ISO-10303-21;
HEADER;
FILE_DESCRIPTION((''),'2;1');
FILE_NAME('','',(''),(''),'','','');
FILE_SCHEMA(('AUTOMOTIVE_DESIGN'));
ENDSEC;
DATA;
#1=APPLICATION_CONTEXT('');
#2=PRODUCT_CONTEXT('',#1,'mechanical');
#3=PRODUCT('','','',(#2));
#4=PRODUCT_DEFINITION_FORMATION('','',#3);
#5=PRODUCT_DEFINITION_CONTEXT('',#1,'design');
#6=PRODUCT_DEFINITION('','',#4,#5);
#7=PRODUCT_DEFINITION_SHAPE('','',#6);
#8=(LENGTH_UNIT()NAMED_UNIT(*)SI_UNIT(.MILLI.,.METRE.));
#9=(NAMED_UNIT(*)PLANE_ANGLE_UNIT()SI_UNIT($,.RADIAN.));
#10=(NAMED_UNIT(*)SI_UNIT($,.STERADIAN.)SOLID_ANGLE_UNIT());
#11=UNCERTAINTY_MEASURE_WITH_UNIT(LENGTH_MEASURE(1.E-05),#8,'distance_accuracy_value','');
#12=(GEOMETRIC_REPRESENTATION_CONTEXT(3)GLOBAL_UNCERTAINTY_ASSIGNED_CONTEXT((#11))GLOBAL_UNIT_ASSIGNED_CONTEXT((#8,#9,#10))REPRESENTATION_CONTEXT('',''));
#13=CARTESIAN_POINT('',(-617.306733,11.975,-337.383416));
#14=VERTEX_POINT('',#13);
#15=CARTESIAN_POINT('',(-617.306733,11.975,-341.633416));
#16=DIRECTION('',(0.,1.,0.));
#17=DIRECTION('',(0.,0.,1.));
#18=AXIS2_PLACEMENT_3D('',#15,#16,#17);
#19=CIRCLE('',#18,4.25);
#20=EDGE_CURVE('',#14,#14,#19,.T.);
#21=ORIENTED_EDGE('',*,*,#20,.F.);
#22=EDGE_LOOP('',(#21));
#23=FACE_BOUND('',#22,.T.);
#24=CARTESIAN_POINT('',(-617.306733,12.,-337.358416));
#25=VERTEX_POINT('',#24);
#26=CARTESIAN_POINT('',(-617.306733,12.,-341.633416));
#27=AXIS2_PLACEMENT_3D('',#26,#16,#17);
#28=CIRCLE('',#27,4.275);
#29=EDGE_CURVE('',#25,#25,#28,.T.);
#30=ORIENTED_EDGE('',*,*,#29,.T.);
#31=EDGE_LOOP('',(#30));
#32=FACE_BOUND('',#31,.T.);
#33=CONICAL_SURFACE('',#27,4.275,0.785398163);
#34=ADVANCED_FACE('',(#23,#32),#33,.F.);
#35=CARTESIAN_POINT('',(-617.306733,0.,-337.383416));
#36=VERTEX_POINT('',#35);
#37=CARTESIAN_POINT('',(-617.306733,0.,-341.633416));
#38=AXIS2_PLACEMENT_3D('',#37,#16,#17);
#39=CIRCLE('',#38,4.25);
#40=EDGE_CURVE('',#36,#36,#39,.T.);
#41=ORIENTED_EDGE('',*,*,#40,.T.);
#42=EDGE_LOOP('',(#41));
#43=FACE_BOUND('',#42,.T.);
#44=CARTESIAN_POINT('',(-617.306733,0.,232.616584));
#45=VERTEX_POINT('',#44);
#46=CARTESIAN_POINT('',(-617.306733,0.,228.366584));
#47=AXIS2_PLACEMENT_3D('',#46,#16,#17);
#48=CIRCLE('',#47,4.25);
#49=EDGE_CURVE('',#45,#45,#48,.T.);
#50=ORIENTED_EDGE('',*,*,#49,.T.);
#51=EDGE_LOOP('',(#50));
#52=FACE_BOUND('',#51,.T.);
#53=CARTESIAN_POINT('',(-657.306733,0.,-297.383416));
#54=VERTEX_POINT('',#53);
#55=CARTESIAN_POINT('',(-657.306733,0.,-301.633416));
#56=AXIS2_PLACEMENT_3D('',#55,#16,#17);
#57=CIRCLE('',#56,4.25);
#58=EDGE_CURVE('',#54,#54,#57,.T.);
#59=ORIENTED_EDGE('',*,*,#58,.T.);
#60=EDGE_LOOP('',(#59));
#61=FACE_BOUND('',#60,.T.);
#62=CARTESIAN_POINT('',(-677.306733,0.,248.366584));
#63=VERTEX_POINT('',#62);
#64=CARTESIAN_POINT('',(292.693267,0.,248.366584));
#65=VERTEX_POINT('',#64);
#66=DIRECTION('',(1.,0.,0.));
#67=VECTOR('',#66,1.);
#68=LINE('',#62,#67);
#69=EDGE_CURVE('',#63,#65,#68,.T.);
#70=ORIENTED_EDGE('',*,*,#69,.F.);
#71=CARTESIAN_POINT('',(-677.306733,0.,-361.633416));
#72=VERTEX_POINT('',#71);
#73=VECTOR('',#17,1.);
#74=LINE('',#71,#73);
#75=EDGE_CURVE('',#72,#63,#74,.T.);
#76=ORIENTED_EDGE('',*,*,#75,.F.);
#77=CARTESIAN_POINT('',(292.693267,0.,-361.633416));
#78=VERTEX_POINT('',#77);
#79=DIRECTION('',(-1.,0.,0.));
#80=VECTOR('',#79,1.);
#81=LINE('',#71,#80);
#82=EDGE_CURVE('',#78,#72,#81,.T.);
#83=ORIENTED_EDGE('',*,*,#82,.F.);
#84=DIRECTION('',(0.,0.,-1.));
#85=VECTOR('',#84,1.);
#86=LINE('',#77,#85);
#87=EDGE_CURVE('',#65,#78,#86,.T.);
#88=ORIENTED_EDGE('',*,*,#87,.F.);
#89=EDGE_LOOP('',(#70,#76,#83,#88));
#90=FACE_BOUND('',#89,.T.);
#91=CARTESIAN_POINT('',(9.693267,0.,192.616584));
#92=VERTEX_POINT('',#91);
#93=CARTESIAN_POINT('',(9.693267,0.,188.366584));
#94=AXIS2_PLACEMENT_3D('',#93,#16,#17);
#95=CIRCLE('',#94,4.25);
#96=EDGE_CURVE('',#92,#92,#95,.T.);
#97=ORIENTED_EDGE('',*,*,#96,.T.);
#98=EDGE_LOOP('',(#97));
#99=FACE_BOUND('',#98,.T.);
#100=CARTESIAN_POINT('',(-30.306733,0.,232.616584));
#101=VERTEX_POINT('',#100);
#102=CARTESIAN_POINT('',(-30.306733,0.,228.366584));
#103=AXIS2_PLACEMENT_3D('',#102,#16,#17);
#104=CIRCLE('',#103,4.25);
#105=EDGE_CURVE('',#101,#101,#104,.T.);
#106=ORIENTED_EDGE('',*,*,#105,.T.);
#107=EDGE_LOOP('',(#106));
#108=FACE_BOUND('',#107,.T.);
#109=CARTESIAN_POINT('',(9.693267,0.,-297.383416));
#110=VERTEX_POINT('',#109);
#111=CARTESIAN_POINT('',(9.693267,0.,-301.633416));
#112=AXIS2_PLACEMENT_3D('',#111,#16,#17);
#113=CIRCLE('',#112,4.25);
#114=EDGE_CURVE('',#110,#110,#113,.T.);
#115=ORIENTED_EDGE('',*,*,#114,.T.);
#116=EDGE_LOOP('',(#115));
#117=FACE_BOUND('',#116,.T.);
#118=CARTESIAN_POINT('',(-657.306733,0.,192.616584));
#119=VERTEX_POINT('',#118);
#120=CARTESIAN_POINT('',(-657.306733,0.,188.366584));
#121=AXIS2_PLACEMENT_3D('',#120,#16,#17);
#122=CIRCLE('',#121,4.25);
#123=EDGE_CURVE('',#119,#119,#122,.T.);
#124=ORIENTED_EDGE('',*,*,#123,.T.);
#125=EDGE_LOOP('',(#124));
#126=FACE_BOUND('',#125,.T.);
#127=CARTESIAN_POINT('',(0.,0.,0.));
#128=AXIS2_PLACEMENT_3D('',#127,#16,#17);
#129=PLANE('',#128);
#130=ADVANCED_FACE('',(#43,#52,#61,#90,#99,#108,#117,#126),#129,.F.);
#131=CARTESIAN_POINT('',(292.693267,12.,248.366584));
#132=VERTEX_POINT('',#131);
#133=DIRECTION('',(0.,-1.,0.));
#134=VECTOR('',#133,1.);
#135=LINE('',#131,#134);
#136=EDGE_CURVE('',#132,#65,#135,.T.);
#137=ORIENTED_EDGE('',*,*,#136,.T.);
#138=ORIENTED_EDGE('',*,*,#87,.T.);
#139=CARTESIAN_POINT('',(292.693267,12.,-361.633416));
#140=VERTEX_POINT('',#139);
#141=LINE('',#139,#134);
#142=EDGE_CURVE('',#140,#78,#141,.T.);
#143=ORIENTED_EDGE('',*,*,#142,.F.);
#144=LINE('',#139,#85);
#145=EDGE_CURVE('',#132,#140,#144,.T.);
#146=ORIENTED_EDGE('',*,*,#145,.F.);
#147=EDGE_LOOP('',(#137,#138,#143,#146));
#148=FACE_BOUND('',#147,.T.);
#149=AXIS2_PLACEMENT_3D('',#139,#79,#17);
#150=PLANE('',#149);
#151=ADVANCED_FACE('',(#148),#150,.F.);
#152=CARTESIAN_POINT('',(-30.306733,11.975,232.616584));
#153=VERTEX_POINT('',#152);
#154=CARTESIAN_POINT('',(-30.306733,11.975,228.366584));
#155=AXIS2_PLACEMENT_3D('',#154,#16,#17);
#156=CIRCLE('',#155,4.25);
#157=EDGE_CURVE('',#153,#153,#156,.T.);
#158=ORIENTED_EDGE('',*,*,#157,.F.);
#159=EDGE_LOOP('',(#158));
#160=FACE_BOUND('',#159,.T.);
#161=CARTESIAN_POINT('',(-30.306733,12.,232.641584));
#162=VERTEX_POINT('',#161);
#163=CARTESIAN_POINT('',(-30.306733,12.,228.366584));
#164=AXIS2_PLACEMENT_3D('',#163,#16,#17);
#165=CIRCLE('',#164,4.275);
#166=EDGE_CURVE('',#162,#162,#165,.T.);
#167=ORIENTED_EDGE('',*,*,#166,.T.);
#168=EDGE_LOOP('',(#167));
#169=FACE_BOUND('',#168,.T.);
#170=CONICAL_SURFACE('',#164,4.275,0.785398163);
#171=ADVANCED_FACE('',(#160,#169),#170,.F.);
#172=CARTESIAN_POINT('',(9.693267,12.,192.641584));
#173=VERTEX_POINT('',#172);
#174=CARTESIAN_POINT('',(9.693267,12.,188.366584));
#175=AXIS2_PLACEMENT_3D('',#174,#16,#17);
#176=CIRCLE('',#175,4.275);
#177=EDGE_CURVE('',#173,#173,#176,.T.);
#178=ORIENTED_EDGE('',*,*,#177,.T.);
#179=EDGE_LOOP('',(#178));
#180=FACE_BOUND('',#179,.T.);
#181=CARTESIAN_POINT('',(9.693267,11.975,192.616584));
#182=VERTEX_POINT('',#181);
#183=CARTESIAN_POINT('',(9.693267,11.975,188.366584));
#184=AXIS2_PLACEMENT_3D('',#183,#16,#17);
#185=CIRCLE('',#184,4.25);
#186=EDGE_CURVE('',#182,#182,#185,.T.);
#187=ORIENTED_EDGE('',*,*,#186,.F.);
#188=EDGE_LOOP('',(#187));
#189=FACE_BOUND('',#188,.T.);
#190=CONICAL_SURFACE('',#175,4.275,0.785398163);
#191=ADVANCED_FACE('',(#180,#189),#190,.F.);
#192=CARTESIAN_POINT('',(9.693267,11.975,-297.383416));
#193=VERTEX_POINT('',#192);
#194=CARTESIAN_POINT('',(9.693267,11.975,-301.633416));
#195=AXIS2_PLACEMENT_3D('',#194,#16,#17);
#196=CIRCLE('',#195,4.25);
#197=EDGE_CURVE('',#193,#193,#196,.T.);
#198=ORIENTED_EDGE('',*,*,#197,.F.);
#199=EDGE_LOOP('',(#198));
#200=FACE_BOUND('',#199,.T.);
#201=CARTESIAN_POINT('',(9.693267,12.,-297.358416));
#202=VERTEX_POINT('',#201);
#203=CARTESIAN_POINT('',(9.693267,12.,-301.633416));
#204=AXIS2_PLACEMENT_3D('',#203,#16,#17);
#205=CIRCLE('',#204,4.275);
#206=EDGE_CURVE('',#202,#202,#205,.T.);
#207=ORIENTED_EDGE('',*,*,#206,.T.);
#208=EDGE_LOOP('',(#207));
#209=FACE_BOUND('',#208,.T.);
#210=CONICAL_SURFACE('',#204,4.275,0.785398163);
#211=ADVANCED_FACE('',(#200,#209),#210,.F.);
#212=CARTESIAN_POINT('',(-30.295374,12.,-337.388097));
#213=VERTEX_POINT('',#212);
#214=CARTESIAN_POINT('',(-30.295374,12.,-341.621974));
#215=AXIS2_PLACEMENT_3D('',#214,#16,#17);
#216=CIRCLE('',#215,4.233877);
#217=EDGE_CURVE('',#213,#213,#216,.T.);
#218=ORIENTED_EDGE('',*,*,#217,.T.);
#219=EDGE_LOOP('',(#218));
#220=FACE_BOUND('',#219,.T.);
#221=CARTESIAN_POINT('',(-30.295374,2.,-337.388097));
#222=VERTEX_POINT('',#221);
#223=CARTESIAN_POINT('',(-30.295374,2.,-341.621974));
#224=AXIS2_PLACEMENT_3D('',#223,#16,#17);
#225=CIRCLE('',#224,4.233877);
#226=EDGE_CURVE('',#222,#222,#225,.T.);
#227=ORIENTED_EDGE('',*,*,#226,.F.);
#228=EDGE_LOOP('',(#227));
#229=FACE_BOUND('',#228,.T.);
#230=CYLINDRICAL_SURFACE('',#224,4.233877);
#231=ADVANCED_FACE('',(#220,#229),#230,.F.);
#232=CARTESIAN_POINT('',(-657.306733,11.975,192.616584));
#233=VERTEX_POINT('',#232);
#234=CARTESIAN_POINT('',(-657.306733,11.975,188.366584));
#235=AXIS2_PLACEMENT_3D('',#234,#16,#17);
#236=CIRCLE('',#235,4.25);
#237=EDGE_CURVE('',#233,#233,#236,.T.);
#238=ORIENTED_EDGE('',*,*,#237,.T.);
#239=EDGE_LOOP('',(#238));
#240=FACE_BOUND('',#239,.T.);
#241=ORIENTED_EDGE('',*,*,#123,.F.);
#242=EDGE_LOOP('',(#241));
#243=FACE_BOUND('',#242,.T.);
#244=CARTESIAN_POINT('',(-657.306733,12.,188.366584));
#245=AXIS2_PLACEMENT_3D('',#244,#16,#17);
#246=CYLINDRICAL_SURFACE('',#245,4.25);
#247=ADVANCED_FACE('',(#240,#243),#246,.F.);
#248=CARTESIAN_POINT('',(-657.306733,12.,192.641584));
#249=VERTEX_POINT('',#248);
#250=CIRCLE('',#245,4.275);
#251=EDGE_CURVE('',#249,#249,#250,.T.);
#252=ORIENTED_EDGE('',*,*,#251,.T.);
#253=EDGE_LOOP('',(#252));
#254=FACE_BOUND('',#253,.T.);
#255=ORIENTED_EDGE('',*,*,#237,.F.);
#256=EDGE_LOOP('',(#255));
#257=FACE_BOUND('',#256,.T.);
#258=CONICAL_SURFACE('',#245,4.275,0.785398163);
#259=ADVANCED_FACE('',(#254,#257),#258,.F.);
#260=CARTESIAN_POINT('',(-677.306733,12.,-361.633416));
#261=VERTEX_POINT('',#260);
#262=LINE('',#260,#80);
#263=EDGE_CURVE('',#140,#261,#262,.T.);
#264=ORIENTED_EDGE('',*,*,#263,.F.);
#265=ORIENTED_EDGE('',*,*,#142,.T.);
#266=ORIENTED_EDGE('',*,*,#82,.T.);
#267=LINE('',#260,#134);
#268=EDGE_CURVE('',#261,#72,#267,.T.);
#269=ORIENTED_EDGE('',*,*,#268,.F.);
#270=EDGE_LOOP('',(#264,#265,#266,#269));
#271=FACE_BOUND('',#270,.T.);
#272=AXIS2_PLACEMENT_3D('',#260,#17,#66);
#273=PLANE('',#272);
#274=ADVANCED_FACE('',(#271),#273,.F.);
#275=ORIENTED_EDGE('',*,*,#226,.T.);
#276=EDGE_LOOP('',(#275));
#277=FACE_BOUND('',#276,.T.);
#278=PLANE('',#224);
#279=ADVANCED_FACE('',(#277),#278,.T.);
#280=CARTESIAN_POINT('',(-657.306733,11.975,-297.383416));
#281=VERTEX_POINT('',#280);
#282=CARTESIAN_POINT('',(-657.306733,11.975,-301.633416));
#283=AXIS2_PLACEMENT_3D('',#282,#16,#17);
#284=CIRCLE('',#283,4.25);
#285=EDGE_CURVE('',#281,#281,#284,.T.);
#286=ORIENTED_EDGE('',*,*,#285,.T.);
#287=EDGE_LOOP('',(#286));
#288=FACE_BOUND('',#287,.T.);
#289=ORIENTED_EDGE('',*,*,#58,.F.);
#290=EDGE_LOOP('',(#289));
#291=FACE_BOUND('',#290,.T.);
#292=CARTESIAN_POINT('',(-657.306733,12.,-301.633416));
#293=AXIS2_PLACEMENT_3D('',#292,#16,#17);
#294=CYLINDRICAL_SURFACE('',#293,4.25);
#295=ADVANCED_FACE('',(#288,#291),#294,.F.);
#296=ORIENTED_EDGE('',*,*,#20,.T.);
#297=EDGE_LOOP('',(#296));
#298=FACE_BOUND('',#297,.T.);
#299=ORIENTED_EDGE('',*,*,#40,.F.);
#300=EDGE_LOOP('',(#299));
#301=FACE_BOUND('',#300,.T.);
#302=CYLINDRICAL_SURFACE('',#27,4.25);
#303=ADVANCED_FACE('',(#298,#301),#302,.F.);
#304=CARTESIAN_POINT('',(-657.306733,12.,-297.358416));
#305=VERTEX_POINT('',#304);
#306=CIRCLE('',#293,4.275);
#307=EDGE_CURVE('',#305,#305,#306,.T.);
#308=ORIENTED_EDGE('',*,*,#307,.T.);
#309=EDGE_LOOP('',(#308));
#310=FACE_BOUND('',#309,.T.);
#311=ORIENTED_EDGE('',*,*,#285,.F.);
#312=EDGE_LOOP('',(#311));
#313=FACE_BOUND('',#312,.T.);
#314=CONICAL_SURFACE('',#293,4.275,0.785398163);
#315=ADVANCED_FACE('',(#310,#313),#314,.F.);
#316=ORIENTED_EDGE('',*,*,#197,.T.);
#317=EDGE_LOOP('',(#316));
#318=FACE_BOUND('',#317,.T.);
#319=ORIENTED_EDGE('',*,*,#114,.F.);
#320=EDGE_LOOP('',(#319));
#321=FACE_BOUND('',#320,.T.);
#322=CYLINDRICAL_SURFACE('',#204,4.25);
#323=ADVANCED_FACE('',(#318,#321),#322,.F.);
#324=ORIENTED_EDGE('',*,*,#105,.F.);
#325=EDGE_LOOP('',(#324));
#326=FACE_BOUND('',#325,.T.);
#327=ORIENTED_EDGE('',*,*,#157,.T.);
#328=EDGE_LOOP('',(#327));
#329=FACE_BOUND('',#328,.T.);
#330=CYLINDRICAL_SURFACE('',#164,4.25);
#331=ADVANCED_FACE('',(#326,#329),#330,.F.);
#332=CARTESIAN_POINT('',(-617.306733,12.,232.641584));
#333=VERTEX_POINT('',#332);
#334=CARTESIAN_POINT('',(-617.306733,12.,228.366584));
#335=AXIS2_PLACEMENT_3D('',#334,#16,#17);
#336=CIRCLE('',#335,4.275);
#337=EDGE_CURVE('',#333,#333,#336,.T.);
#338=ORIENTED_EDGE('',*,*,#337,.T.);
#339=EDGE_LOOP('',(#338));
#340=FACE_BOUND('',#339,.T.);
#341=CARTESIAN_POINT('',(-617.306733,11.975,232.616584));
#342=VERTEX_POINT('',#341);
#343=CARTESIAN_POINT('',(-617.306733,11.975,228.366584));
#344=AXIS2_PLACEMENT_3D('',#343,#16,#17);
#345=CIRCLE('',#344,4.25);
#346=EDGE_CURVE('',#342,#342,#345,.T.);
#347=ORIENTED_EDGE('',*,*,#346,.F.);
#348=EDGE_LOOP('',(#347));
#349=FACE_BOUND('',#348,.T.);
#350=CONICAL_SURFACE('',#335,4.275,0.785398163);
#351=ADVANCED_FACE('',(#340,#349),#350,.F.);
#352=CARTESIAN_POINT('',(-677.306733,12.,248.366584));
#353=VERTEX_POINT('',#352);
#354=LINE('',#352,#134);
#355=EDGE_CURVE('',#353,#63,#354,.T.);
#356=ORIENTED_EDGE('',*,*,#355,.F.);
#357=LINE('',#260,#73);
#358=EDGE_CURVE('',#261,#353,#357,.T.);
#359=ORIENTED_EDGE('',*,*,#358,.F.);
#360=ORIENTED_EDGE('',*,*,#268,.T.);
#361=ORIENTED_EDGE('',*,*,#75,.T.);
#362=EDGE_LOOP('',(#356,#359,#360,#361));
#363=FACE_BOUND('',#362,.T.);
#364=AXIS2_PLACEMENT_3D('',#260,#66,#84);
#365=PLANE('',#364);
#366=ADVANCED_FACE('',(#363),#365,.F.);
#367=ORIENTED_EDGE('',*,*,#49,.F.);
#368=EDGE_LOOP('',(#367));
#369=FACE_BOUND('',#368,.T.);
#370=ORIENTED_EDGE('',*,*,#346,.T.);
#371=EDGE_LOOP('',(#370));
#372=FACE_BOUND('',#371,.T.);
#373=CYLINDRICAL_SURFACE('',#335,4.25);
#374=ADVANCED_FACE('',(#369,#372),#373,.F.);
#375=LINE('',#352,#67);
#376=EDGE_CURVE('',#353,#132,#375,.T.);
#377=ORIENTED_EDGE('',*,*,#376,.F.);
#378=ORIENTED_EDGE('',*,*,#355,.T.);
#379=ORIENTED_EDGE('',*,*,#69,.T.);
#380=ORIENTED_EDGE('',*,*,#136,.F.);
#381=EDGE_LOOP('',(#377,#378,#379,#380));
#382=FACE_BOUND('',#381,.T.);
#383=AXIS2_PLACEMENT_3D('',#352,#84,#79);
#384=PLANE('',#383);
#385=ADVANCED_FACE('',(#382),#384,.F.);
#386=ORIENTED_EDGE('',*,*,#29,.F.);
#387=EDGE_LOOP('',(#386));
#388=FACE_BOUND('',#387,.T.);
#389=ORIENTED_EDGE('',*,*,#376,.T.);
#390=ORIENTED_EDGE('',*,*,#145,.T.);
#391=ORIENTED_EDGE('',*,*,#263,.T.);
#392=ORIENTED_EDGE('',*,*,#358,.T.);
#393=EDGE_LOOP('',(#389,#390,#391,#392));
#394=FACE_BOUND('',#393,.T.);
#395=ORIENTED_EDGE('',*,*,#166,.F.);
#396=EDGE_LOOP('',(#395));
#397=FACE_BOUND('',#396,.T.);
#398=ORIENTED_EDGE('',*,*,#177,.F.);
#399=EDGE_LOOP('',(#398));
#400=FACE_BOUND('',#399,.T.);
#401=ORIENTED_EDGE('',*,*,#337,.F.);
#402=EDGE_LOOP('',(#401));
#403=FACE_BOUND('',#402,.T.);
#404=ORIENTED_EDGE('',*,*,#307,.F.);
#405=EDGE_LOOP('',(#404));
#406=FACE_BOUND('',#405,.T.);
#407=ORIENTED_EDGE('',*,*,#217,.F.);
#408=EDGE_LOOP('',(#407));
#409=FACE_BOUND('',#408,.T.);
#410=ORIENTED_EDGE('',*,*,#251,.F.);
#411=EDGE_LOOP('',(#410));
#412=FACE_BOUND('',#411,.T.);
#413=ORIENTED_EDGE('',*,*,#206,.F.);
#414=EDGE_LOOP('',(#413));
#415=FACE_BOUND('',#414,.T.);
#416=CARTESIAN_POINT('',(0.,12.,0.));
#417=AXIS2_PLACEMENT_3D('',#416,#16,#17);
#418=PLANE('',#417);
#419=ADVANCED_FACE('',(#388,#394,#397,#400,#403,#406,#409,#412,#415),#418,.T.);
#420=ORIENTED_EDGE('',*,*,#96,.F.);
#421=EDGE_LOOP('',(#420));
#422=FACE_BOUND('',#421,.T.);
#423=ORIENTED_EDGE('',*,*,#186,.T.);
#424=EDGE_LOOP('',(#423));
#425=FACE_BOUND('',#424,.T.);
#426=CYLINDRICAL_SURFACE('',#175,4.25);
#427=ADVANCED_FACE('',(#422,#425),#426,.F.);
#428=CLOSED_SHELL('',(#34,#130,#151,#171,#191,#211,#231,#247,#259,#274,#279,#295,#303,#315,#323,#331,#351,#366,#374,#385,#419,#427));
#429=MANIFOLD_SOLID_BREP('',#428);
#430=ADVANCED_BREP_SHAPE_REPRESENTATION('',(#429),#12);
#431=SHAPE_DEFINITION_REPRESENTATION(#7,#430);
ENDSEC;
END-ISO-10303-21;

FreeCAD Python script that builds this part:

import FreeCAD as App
import Part
import Sketcher

V = App.Vector
Q = App.Units.Quantity


def add_polygon(sketch, points):
    """Adds a closed chain of lines whose ends are joined by coincident constraints."""
    first, n = sketch.GeometryCount, len(points)
    for a, b in zip(points, points[1:] + points[:1]):
        sketch.addGeometry(Part.LineSegment(App.Vector(*a, 0), App.Vector(*b, 0)), False)
    for i in range(n):
        sketch.addConstraint(Sketcher.Constraint("Coincident", first + i, 2, first + (i + 1) % n, 1))

doc = App.newDocument("Part")
params = doc.addObject("Spreadsheet::Sheet", "Params")
for row, (alias, value) in enumerate([
    ("sketch1_width", "970 mm"),
    ("sketch1_height", "610 mm"),
    ("pad1_length", "12 mm"),
    ("pocket1_length", "10 mm"),
    ("sketch3_diameter", "8.5 mm"),
    ("hole_diameter", "8.5 mm"),
    ("hole_csink_diameter", "8.55 mm"),
], start=1):
    params.set(f"A{row}", alias)
    params.set(f"B{row}", "=" + value)
    params.setAlias(f"B{row}", alias)

body = doc.addObject("PartDesign::Body", "Body")

sketch1 = body.newObject("Sketcher::SketchObject", "Sketch")
sketch1.AttachmentSupport = (doc.getObject("XZ_Plane"), [""])
sketch1.MapMode = "FlatFace"
add_polygon(sketch1, [(-677, -362), (-677, 248), (293, 248), (293, -362)])
sketch1.addConstraint([
    Sketcher.Constraint("Vertical", 0),
    Sketcher.Constraint("Horizontal", 1),
    Sketcher.Constraint("Vertical", 2),
    Sketcher.Constraint("Horizontal", 3),
    Sketcher.Constraint("DistanceX", 1, 1, 1, 2, Q("970 mm")),
    Sketcher.Constraint("DistanceY", 0, 1, 0, 2, Q("610 mm")),
    Sketcher.Constraint("DistanceX", 0, 2, -1, 1, Q("677.306733 mm")),
    Sketcher.Constraint("DistanceY", -1, 1, 0, 2, Q("248.366584 mm")),
])
sketch1.setExpression("Constraints[8]", "Params.sketch1_width")
sketch1.setExpression("Constraints[9]", "Params.sketch1_height")
pad1 = body.newObject("PartDesign::Pad", "Pad")
pad1.Profile = sketch1
pad1.setExpression("Length", "Params.pad1_length")
pad1.Reversed = True

sketch2 = body.newObject("Sketcher::SketchObject", "Sketch001")
sketch2.AttachmentSupport = (doc.getObject("XZ_Plane"), [""])
sketch2.MapMode = "FlatFace"
sketch2.AttachmentOffset = App.Placement(V(0, 0, -12), App.Rotation())
sketch2.addGeometry(Part.Circle(V(-30.3, -341.6, 0), V(0, 0, 1), 4.2), False)
sketch2.addConstraint([
    Sketcher.Constraint("Diameter", 0, Q("8.467754 mm")),
    Sketcher.Constraint("DistanceX", 0, 3, -1, 1, Q("30.295374 mm")),
    Sketcher.Constraint("DistanceY", 0, 3, -1, 1, Q("341.621974 mm")),
])
pocket1 = body.newObject("PartDesign::Pocket", "Pocket")
pocket1.Profile = sketch2
pocket1.setExpression("Length", "Params.pocket1_length")
pocket1.Reversed = True

sketch3 = body.newObject("Sketcher::SketchObject", "Sketch002")
sketch3.AttachmentSupport = (doc.getObject("XZ_Plane"), [""])
sketch3.MapMode = "FlatFace"
sketch3.AttachmentOffset = App.Placement(V(0, 0, -12), App.Rotation())
sketch3.addGeometry([
    Part.Circle(V(-617.3, -341.6, 0), V(0, 0, 1), 4.2),
    Part.Circle(V(-657.3, -301.6, 0), V(0, 0, 1), 4.2),
    Part.Circle(V(-617.3, 228.4, 0), V(0, 0, 1), 4.2),
    Part.Circle(V(-657.3, 188.4, 0), V(0, 0, 1), 4.2),
    Part.Circle(V(9.7, 188.4, 0), V(0, 0, 1), 4.2),
    Part.Circle(V(-30.3, 228.4, 0), V(0, 0, 1), 4.2),
    Part.Circle(V(9.7, -301.6, 0), V(0, 0, 1), 4.2),
], False)
sketch3.addConstraint([
    Sketcher.Constraint("Equal", 0, 1),
    Sketcher.Constraint("Equal", 1, 2),
    Sketcher.Constraint("Equal", 2, 3),
    Sketcher.Constraint("Equal", 3, 4),
    Sketcher.Constraint("Equal", 4, 5),
    Sketcher.Constraint("Equal", 5, 6),
    Sketcher.Constraint("Horizontal", 3, 3, 4, 3),
    Sketcher.Constraint("Horizontal", 2, 3, 5, 3),
    Sketcher.Constraint("Horizontal", 1, 3, 6, 3),
    Sketcher.Constraint("Vertical", 0, 3, 2, 3),
    Sketcher.Constraint("Vertical", 1, 3, 3, 3),
    Sketcher.Constraint("Vertical", 4, 3, 6, 3),
    Sketcher.Constraint("Diameter", 0, Q("8.5 mm")),
    Sketcher.Constraint("DistanceX", 1, 3, 0, 3, Q("40 mm")),
    Sketcher.Constraint("DistanceY", 0, 3, 1, 3, Q("40 mm")),
    Sketcher.Constraint("DistanceY", 1, 3, 2, 3, Q("530 mm")),
    Sketcher.Constraint("DistanceY", 3, 3, 2, 3, Q("40 mm")),
    Sketcher.Constraint("DistanceX", 2, 3, 4, 3, Q("627 mm")),
    Sketcher.Constraint("DistanceX", 5, 3, 4, 3, Q("40 mm")),
    Sketcher.Constraint("DistanceX", 0, 3, -1, 1, Q("617.306733 mm")),
    Sketcher.Constraint("DistanceY", 0, 3, -1, 1, Q("341.633416 mm")),
])
sketch3.setExpression("Constraints[12]", "Params.sketch3_diameter")
doc.recompute()
hole = body.newObject("PartDesign::Hole", "Hole")
hole.Profile = sketch3
hole.ThreadType = "None"
hole.setExpression("Diameter", "Params.hole_diameter")
hole.DepthType = "ThroughAll"
hole.HoleCutType = "Countersink"
hole.setExpression("HoleCutDiameter", "Params.hole_csink_diameter")
hole.HoleCutCountersinkAngle = 90
hole.Reversed = True

doc.recompute()
